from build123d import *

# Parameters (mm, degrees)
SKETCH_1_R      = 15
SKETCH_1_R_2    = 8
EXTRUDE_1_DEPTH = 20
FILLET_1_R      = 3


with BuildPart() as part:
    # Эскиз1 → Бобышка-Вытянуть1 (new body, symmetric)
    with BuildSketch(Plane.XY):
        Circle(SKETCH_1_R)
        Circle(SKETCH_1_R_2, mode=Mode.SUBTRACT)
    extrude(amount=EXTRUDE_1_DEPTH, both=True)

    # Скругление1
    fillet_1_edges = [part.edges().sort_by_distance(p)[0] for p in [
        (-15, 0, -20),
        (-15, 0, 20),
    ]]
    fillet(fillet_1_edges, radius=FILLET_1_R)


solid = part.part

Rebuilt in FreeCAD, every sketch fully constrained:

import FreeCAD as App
import Part
import Sketcher
from FreeCAD import Vector


def edges_at(feature, points):
    """Names of the edges that pass closest to the given points."""
    edges = feature.Shape.Edges
    near = lambda p: min(range(len(edges)), key=lambda i: edges[i].distToShape(Part.Vertex(*p))[0])
    return sorted({f"Edge{near(p) + 1}" for p in points})

doc = App.newDocument("Part")
params = doc.addObject("Spreadsheet::Sheet", "Params")
for row, (alias, value) in enumerate([
    ("sketch1_diameter", "30 mm"),
    ("sketch1_diameter2", "16 mm"),
    ("pad1_length", "40 mm"),
    ("fillet_radius", "3 mm"),
], start=1):
    params.set(f"A{row}", alias)
    params.set(f"B{row}", "=" + value)
    params.setAlias(f"B{row}", alias)

body = doc.addObject("PartDesign::Body", "Body")

# Sketch on XY plane
sketch1 = body.newObject("Sketcher::SketchObject", "Sketch")
sketch1.AttachmentSupport = (doc.getObject("XY_Plane"), [""])
sketch1.MapMode = "FlatFace"
sketch1.addGeometry(Part.Circle(Vector(0, 0, 0), Vector(0, 0, 1), 15), False)
sketch1.addGeometry(Part.Circle(Vector(0, 0, 0), Vector(0, 0, 1), 8), False)
sketch1.addConstraint(Sketcher.Constraint("Coincident", 0, 3, -1, 1))
sketch1.addConstraint(Sketcher.Constraint("Coincident", 1, 3, -1, 1))
sketch1.addConstraint(Sketcher.Constraint("Diameter", 0, 30.0))
sketch1.addConstraint(Sketcher.Constraint("Diameter", 1, 16.0))
sketch1.setExpression("Constraints[2]", "Params.sketch1_diameter")
sketch1.setExpression("Constraints[3]", "Params.sketch1_diameter2")
pad1 = body.newObject("PartDesign::Pad", "Pad")
pad1.Profile = sketch1
pad1.setExpression("Length", "Params.pad1_length")
pad1.Midplane = True
doc.recompute()

fillet = body.newObject("PartDesign::Fillet", "Fillet")
fillet.Base = (pad1, edges_at(pad1, [(-15, 0, -20), (-15, 0, 20)]))
fillet.setExpression("Radius", "Params.fillet_radius")

doc.recompute()
